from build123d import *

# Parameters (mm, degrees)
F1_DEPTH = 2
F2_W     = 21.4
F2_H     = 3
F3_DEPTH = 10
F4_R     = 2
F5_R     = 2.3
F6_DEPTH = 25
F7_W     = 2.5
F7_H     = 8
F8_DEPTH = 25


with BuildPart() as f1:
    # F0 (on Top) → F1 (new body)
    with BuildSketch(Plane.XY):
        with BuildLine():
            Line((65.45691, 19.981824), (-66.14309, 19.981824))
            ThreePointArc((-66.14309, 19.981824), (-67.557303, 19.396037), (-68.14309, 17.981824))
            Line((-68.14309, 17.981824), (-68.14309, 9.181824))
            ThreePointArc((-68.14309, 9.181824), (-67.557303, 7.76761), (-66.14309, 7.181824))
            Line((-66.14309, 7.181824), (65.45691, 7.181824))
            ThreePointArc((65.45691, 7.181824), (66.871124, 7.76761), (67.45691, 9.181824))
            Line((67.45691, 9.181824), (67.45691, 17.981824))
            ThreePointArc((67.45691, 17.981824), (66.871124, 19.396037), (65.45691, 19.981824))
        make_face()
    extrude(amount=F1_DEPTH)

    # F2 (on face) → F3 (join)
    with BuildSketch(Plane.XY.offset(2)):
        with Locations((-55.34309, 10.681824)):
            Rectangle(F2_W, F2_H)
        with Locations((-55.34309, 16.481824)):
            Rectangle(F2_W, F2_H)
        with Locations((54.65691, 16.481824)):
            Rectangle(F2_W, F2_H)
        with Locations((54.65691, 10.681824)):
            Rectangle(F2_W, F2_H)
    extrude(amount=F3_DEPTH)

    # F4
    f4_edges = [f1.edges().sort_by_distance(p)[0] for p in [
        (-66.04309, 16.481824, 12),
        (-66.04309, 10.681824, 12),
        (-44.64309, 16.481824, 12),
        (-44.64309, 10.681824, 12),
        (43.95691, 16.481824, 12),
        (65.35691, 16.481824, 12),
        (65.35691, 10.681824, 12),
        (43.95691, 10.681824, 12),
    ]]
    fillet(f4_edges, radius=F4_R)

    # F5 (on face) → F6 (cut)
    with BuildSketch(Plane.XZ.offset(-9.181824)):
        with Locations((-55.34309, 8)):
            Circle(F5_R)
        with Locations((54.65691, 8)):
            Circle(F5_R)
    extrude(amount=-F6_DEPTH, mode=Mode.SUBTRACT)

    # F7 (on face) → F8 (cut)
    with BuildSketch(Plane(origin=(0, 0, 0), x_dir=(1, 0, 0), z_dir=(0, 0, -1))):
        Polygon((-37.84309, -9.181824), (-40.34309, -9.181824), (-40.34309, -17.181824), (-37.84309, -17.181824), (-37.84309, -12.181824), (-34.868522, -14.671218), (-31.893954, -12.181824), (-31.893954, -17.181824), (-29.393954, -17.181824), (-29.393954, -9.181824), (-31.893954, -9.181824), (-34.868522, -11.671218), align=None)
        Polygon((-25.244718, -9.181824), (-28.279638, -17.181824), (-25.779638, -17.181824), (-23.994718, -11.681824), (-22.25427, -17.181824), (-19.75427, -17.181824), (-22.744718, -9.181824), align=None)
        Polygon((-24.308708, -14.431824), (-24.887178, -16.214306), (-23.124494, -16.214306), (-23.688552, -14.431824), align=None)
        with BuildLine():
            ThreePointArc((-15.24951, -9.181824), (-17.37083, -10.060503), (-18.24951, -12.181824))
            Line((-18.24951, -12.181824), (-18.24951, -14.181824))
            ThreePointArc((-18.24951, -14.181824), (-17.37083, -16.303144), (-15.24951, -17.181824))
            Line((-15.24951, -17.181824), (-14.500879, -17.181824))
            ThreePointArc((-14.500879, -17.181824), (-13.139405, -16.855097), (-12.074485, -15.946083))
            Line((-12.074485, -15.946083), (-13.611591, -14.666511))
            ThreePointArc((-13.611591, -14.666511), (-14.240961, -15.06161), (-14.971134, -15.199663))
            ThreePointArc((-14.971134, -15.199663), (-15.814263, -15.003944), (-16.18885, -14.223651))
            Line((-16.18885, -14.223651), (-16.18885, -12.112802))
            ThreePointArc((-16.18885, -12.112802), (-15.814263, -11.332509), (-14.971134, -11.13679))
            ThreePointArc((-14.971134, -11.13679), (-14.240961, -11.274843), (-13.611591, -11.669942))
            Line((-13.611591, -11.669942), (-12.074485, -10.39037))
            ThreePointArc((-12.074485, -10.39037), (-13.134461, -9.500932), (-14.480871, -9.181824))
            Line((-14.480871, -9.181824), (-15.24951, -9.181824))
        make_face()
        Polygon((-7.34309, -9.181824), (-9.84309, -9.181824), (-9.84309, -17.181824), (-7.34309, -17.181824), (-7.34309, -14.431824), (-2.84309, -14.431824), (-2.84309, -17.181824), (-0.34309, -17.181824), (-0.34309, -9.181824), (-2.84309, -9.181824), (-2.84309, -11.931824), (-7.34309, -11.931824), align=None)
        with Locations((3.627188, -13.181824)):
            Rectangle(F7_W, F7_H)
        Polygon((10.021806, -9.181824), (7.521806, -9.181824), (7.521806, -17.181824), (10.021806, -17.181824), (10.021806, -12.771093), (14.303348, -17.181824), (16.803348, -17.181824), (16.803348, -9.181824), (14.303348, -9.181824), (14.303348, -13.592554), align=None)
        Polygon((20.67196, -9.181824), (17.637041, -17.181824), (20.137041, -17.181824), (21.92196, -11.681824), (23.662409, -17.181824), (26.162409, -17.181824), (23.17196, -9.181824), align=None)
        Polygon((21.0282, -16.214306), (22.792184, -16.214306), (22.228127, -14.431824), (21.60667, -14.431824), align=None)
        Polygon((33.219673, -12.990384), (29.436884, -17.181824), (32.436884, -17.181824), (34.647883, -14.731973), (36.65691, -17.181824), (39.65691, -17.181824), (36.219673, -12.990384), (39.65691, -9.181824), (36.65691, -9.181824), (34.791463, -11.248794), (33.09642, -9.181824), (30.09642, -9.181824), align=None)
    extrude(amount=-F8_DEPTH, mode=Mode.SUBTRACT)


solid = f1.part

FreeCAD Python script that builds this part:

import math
import FreeCAD as App
import Part
import Sketcher
from FreeCAD import Vector


def edges_at(feature, points):
    """Names of the edges that pass closest to the given points."""
    edges = feature.Shape.Edges
    near = lambda p: min(range(len(edges)), key=lambda i: edges[i].distToShape(Part.Vertex(*p))[0])
    return sorted({f"Edge{near(p) + 1}" for p in points})


def add_polygon(sketch, points):
    """Adds a closed chain of lines whose ends are joined by coincident constraints."""
    first, n = sketch.GeometryCount, len(points)
    for a, b in zip(points, points[1:] + points[:1]):
        sketch.addGeometry(Part.LineSegment(App.Vector(*a, 0), App.Vector(*b, 0)), False)
    for i in range(n):
        sketch.addConstraint(Sketcher.Constraint("Coincident", first + i, 2, first + (i + 1) % n, 1))

doc = App.newDocument("Part")
body = doc.addObject("PartDesign::Body", "Body")

# Sketch on XY plane
sketch1 = doc.addObject("Sketcher::SketchObject", "Sketch")
body.addObject(sketch1)
sketch1.AttachmentSupport = (doc.XY_Plane, [""])
sketch1.MapMode = "FlatFace"
sketch1.addGeometry(Part.LineSegment(Vector(65.45691, 19.981824, 0), Vector(-66.14309, 19.981824, 0)), False)
sketch1.addGeometry(Part.ArcOfCircle(Part.Circle(Vector(-66.143088, 17.981822, 0), Vector(0, 0, 1), 2.000002), math.radians(90.000055), math.radians(179.999945)), False)
sketch1.addGeometry(Part.LineSegment(Vector(-68.14309, 17.981824, 0), Vector(-68.14309, 9.181824, 0)), False)
sketch1.addGeometry(Part.ArcOfCircle(Part.Circle(Vector(-66.14309, 9.181824, 0), Vector(0, 0, 1), 2), math.radians(-179.999994), math.radians(-90.000006)), False)
sketch1.addGeometry(Part.LineSegment(Vector(-66.14309, 7.181824, 0), Vector(65.45691, 7.181824, 0)), False)
sketch1.addGeometry(Part.ArcOfCircle(Part.Circle(Vector(65.456911, 9.181823, 0), Vector(0, 0, 1), 1.999999), math.radians(-90.000043), math.radians(0.000043)), False)
sketch1.addGeometry(Part.LineSegment(Vector(67.45691, 9.181824, 0), Vector(67.45691, 17.981824, 0)), False)
sketch1.addGeometry(Part.ArcOfCircle(Part.Circle(Vector(65.45691, 17.981824, 0), Vector(0, 0, 1), 2), math.radians(0.000006), math.radians(89.999994)), False)
sketch1.addConstraint(Sketcher.Constraint("Tangent", 0, 2, 1, 1))
sketch1.addConstraint(Sketcher.Constraint("Tangent", 1, 2, 2, 1))
sketch1.addConstraint(Sketcher.Constraint("Tangent", 2, 2, 3, 1))
sketch1.addConstraint(Sketcher.Constraint("Tangent", 3, 2, 4, 1))
sketch1.addConstraint(Sketcher.Constraint("Tangent", 4, 2, 5, 1))
sketch1.addConstraint(Sketcher.Constraint("Tangent", 5, 2, 6, 1))
sketch1.addConstraint(Sketcher.Constraint("Tangent", 6, 2, 7, 1))
sketch1.addConstraint(Sketcher.Constraint("Tangent", 7, 2, 0, 1))
sketch1.addConstraint(Sketcher.Constraint("Horizontal", 0))
sketch1.addConstraint(Sketcher.Constraint("Vertical", 2))
sketch1.addConstraint(Sketcher.Constraint("Horizontal", 4))
sketch1.addConstraint(Sketcher.Constraint("Vertical", 6))
sketch1.addConstraint(Sketcher.Constraint("Equal", 1, 3))
sketch1.addConstraint(Sketcher.Constraint("Equal", 3, 5))
sketch1.addConstraint(Sketcher.Constraint("Equal", 5, 7))
sketch1.addConstraint(Sketcher.Constraint("Radius", 1, 2.000002))
sketch1.addConstraint(Sketcher.Constraint("DistanceX", 0, 2, 0, 1, 131.6))
sketch1.addConstraint(Sketcher.Constraint("DistanceY", 2, 2, 2, 1, 8.8))
sketch1.addConstraint(Sketcher.Constraint("DistanceX", 1, 3, -1, 1, 66.143088))
sketch1.addConstraint(Sketcher.Constraint("DistanceY", -1, 1, 1, 3, 17.981822))
pad1 = doc.addObject("PartDesign::Pad", "Pad")
body.addObject(pad1)
pad1.Profile = sketch1
pad1.Length = 2

# Sketch on XY plane
sketch2 = doc.addObject("Sketcher::SketchObject", "Sketch001")
body.addObject(sketch2)
sketch2.AttachmentSupport = (doc.XY_Plane, [""])
sketch2.MapMode = "FlatFace"
sketch2.AttachmentOffset = App.Placement(Vector(0, 0, 2), App.Rotation())
add_polygon(sketch2, [(-66.04309, 12.181824), (-66.04309, 9.181824), (-44.64309, 9.181824), (-44.64309, 12.181824)])  # lines 0-3
add_polygon(sketch2, [(-66.04309, 17.981824), (-66.04309, 14.981824), (-44.64309, 14.981824), (-44.64309, 17.981824)])  # lines 4-7
add_polygon(sketch2, [(43.95691, 17.981824), (43.95691, 14.981824), (65.35691, 14.981824), (65.35691, 17.981824)])  # lines 8-11
add_polygon(sketch2, [(43.95691, 12.181824), (43.95691, 9.181824), (65.35691, 9.181824), (65.35691, 12.181824)])  # lines 12-15
sketch2.addConstraint(Sketcher.Constraint("Vertical", 0))
sketch2.addConstraint(Sketcher.Constraint("Horizontal", 1))
sketch2.addConstraint(Sketcher.Constraint("Vertical", 2))
sketch2.addConstraint(Sketcher.Constraint("Horizontal", 3))
sketch2.addConstraint(Sketcher.Constraint("Vertical", 4))
sketch2.addConstraint(Sketcher.Constraint("Horizontal", 5))
sketch2.addConstraint(Sketcher.Constraint("Vertical", 6))
sketch2.addConstraint(Sketcher.Constraint("Horizontal", 7))
sketch2.addConstraint(Sketcher.Constraint("Vertical", 8))
sketch2.addConstraint(Sketcher.Constraint("Horizontal", 9))
sketch2.addConstraint(Sketcher.Constraint("Vertical", 10))
sketch2.addConstraint(Sketcher.Constraint("Horizontal", 11))
sketch2.addConstraint(Sketcher.Constraint("Vertical", 12))
sketch2.addConstraint(Sketcher.Constraint("Horizontal", 13))
sketch2.addConstraint(Sketcher.Constraint("Vertical", 14))
sketch2.addConstraint(Sketcher.Constraint("Horizontal", 15))
sketch2.addConstraint(Sketcher.Constraint("Horizontal", 5, 2, 8, 2))
sketch2.addConstraint(Sketcher.Constraint("Horizontal", 7, 2, 10, 2))
sketch2.addConstraint(Sketcher.Constraint("Horizontal", 1, 2, 12, 2))
sketch2.addConstraint(Sketcher.Constraint("Horizontal", 3, 2, 14, 2))
sketch2.addConstraint(Sketcher.Constraint("Vertical", 3, 2, 4, 2))
sketch2.addConstraint(Sketcher.Constraint("Vertical", 2, 2, 5, 2))
sketch2.addConstraint(Sketcher.Constraint("Vertical", 11, 2, 12, 2))
sketch2.addConstraint(Sketcher.Constraint("Vertical", 10, 2, 13, 2))
sketch2.addConstraint(Sketcher.Constraint("Equal", 7, 9))
sketch2.addConstraint(Sketcher.Constraint("Equal", 2, 4))
sketch2.addConstraint(Sketcher.Constraint("DistanceY", 0, 2, 0, 1, 3.0))
sketch2.addConstraint(Sketcher.Constraint("DistanceX", 1, 1, 1, 2, 21.4))
sketch2.addConstraint(Sketcher.Constraint("DistanceX", 4, 2, 8, 2, 110.0))
sketch2.addConstraint(Sketcher.Constraint("DistanceY", 3, 2, 4, 2, 2.8))
sketch2.addConstraint(Sketcher.Constraint("DistanceX", 0, 2, -1, 1, 66.04309))
sketch2.addConstraint(Sketcher.Constraint("DistanceY", -1, 1, 0, 2, 9.181824))
pad2 = doc.addObject("PartDesign::Pad", "Pad001")
body.addObject(pad2)
pad2.Profile = sketch2
pad2.Length = 10
doc.recompute()

fillet = doc.addObject("PartDesign::Fillet", "Fillet")
body.addObject(fillet)
fillet.Base = (pad2, edges_at(pad2, [
    (-66.043, 16.482, 12),
    (-66.043, 10.682, 12),
    (-44.643, 16.482, 12),
    (-44.643, 10.682, 12),
    (43.957, 16.482, 12),
    (65.357, 16.482, 12),
    (65.357, 10.682, 12),
    (43.957, 10.682, 12),
]))
fillet.Radius = 2

# Sketch on XZ plane
sketch3 = doc.addObject("Sketcher::SketchObject", "Sketch002")
body.addObject(sketch3)
sketch3.AttachmentSupport = (doc.XZ_Plane, [""])
sketch3.MapMode = "FlatFace"
sketch3.AttachmentOffset = App.Placement(Vector(0, 0, -9.181824), App.Rotation())
sketch3.addGeometry(Part.Circle(Vector(-55.34309, 8, 0), Vector(0, 0, 1), 2.3), False)
sketch3.addGeometry(Part.Circle(Vector(54.65691, 8, 0), Vector(0, 0, 1), 2.3), False)
sketch3.addConstraint(Sketcher.Constraint("Equal", 0, 1))
sketch3.addConstraint(Sketcher.Constraint("Horizontal", 0, 3, 1, 3))
sketch3.addConstraint(Sketcher.Constraint("Diameter", 0, 4.6))
sketch3.addConstraint(Sketcher.Constraint("DistanceY", -1, 1, 0, 3, 8.0))
sketch3.addConstraint(Sketcher.Constraint("DistanceX", 0, 3, 1, 3, 110.0))
sketch3.addConstraint(Sketcher.Constraint("DistanceX", 0, 3, -1, 1, 55.34309))
pocket1 = doc.addObject("PartDesign::Pocket", "Pocket")
body.addObject(pocket1)
pocket1.Profile = sketch3
pocket1.Length = 25

# Sketch on XY plane
sketch4 = doc.addObject("Sketcher::SketchObject", "Sketch003")
body.addObject(sketch4)
sketch4.AttachmentSupport = (doc.XY_Plane, [""])
sketch4.MapMode = "FlatFace"
add_polygon(sketch4, [(-37.84309, 9.181824), (-40.34309, 9.181824), (-40.34309, 17.181824), (-37.84309, 17.181824), (-37.84309, 12.181824), (-34.868522, 14.671218), (-31.893954, 12.181824), (-31.893954, 17.181824), (-29.393954, 17.181824), (-29.393954, 9.181824), (-31.893954, 9.181824), (-34.868522, 11.671218)])  # lines 0-11
add_polygon(sketch4, [(-25.244718, 9.181824), (-28.279638, 17.181824), (-25.779638, 17.181824), (-23.994718, 11.681824), (-22.25427, 17.181824), (-19.75427, 17.181824), (-22.744718, 9.181824)])  # lines 12-18
add_polygon(sketch4, [(-24.308708, 14.431824), (-24.887178, 16.214306), (-23.124494, 16.214306), (-23.688552, 14.431824)])  # lines 19-22
sketch4.addGeometry(Part.ArcOfCircle(Part.Circle(Vector(-15.249511, 12.181823, 0), Vector(0, 0, 1), 2.999999), math.radians(179.99999), math.radians(270.00001)), False)  # 23
sketch4.addGeometry(Part.LineSegment(Vector(-18.24951, 12.181824, 0), Vector(-18.24951, 14.181824, 0)), False)  # 24
sketch4.addGeometry(Part.ArcOfCircle(Part.Circle(Vector(-15.249509, 14.181823, 0), Vector(0, 0, 1), 3.000001), math.radians(90.000022), math.radians(179.999978)), False)  # 25
sketch4.addGeometry(Part.LineSegment(Vector(-15.24951, 17.181824, 0), Vector(-14.500879, 17.181824, 0)), False)  # 26
sketch4.addGeometry(Part.ArcOfCircle(Part.Circle(Vector(-14.500879, 14.181826, 0), Vector(0, 0, 1), 2.999998), math.radians(36.021309), math.radians(90.000008)), False)  # 27
sketch4.addGeometry(Part.LineSegment(Vector(-12.074485, 15.946083, 0), Vector(-13.611591, 14.666511, 0)), False)  # 28
sketch4.addGeometry(Part.ArcOfCircle(Part.Circle(Vector(-14.971135, 13.19966, 0), Vector(0, 0, 1), 2.000003), math.radians(47.174247), math.radians(89.999969)), False)  # 29
sketch4.addGeometry(Part.ArcOfCircle(Part.Circle(Vector(-15.188849, 14.22365, 0), Vector(0, 0, 1), 1.000001), math.radians(77.425151), math.radians(179.999922)), False)  # 30
sketch4.addGeometry(Part.LineSegment(Vector(-16.18885, 14.223651, 0), Vector(-16.18885, 12.112802, 0)), False)  # 31
sketch4.addGeometry(Part.ArcOfCircle(Part.Circle(Vector(-15.188849, 12.112803, 0), Vector(0, 0, 1), 1.000001), math.radians(-179.999922), math.radians(-77.425151)), False)  # 32
sketch4.addGeometry(Part.ArcOfCircle(Part.Circle(Vector(-14.971135, 13.136793, 0), Vector(0, 0, 1), 2.000003), math.radians(-89.999969), math.radians(-47.174247)), False)  # 33
sketch4.addGeometry(Part.LineSegment(Vector(-13.611591, 11.669942, 0), Vector(-12.074485, 10.39037, 0)), False)  # 34
sketch4.addGeometry(Part.ArcOfCircle(Part.Circle(Vector(-14.48087, 12.181822, 0), Vector(0, 0, 1), 2.999998), math.radians(-90.000021), math.radians(-36.666132)), False)  # 35
sketch4.addGeometry(Part.LineSegment(Vector(-14.480871, 9.181824, 0), Vector(-15.24951, 9.181824, 0)), False)  # 36
add_polygon(sketch4, [(-7.34309, 9.181824), (-9.84309, 9.181824), (-9.84309, 17.181824), (-7.34309, 17.181824), (-7.34309, 14.431824), (-2.84309, 14.431824), (-2.84309, 17.181824), (-0.34309, 17.181824), (-0.34309, 9.181824), (-2.84309, 9.181824), (-2.84309, 11.931824), (-7.34309, 11.931824)])  # lines 37-48
add_polygon(sketch4, [(2.377188, 9.181824), (2.377188, 17.181824), (4.877188, 17.181824), (4.877188, 9.181824)])  # lines 49-52
add_polygon(sketch4, [(10.021806, 9.181824), (7.521806, 9.181824), (7.521806, 17.181824), (10.021806, 17.181824), (10.021806, 12.771093), (14.303348, 17.181824), (16.803348, 17.181824), (16.803348, 9.181824), (14.303348, 9.181824), (14.303348, 13.592554)])  # lines 53-62
add_polygon(sketch4, [(20.67196, 9.181824), (17.637041, 17.181824), (20.137041, 17.181824), (21.92196, 11.681824), (23.662409, 17.181824), (26.162409, 17.181824), (23.17196, 9.181824)])  # lines 63-69
add_polygon(sketch4, [(21.0282, 16.214306), (22.792184, 16.214306), (22.228127, 14.431824), (21.60667, 14.431824)])  # lines 70-73
add_polygon(sketch4, [(33.219673, 12.990384), (29.436884, 17.181824), (32.436884, 17.181824), (34.647883, 14.731973), (36.65691, 17.181824), (39.65691, 17.181824), (36.219673, 12.990384), (39.65691, 9.181824), (36.65691, 9.181824), (34.791463, 11.248794), (33.09642, 9.181824), (30.09642, 9.181824)])  # lines 74-85
sketch4.addConstraint(Sketcher.Constraint("Coincident", 23, 1, 24, 1))
sketch4.addConstraint(Sketcher.Constraint("Coincident", 24, 2, 25, 2))
sketch4.addConstraint(Sketcher.Constraint("Coincident", 25, 1, 26, 1))
sketch4.addConstraint(Sketcher.Constraint("Coincident", 26, 2, 27, 2))
sketch4.addConstraint(Sketcher.Constraint("Coincident", 27, 1, 28, 1))
sketch4.addConstraint(Sketcher.Constraint("Coincident", 28, 2, 29, 1))
sketch4.addConstraint(Sketcher.Constraint("Coincident", 29, 2, 30, 1))
sketch4.addConstraint(Sketcher.Constraint("Coincident", 30, 2, 31, 1))
sketch4.addConstraint(Sketcher.Constraint("Coincident", 31, 2, 32, 1))
sketch4.addConstraint(Sketcher.Constraint("Coincident", 32, 2, 33, 1))
sketch4.addConstraint(Sketcher.Constraint("Coincident", 33, 2, 34, 1))
sketch4.addConstraint(Sketcher.Constraint("Coincident", 34, 2, 35, 2))
sketch4.addConstraint(Sketcher.Constraint("Coincident", 35, 1, 36, 1))
sketch4.addConstraint(Sketcher.Constraint("Coincident", 36, 2, 23, 2))
sketch4.addConstraint(Sketcher.Constraint("Horizontal", 0))
sketch4.addConstraint(Sketcher.Constraint("Vertical", 1))
sketch4.addConstraint(Sketcher.Constraint("Horizontal", 2))
sketch4.addConstraint(Sketcher.Constraint("Vertical", 3))
sketch4.addConstraint(Sketcher.Constraint("Vertical", 6))
sketch4.addConstraint(Sketcher.Constraint("Horizontal", 7))
sketch4.addConstraint(Sketcher.Constraint("Vertical", 8))
sketch4.addConstraint(Sketcher.Constraint("Horizontal", 9))
sketch4.addConstraint(Sketcher.Constraint("Horizontal", 13))
sketch4.addConstraint(Sketcher.Constraint("Horizontal", 16))
sketch4.addConstraint(Sketcher.Constraint("Horizontal", 18))
sketch4.addConstraint(Sketcher.Constraint("Horizontal", 20))
sketch4.addConstraint(Sketcher.Constraint("Horizontal", 22))
sketch4.addConstraint(Sketcher.Constraint("Vertical", 24))
sketch4.addConstraint(Sketcher.Constraint("Horizontal", 26))
sketch4.addConstraint(Sketcher.Constraint("Vertical", 31))
sketch4.addConstraint(Sketcher.Constraint("Horizontal", 36))
sketch4.addConstraint(Sketcher.Constraint("Horizontal", 37))
sketch4.addConstraint(Sketcher.Constraint("Vertical", 38))
sketch4.addConstraint(Sketcher.Constraint("Horizontal", 39))
sketch4.addConstraint(Sketcher.Constraint("Vertical", 40))
sketch4.addConstraint(Sketcher.Constraint("Horizontal", 41))
sketch4.addConstraint(Sketcher.Constraint("Vertical", 42))
sketch4.addConstraint(Sketcher.Constraint("Horizontal", 43))
sketch4.addConstraint(Sketcher.Constraint("Vertical", 44))
sketch4.addConstraint(Sketcher.Constraint("Horizontal", 45))
sketch4.addConstraint(Sketcher.Constraint("Vertical", 46))
sketch4.addConstraint(Sketcher.Constraint("Horizontal", 47))
sketch4.addConstraint(Sketcher.Constraint("Vertical", 48))
sketch4.addConstraint(Sketcher.Constraint("Vertical", 49))
sketch4.addConstraint(Sketcher.Constraint("Horizontal", 50))
sketch4.addConstraint(Sketcher.Constraint("Vertical", 51))
sketch4.addConstraint(Sketcher.Constraint("Horizontal", 52))
sketch4.addConstraint(Sketcher.Constraint("Horizontal", 53))
sketch4.addConstraint(Sketcher.Constraint("Vertical", 54))
sketch4.addConstraint(Sketcher.Constraint("Horizontal", 55))
sketch4.addConstraint(Sketcher.Constraint("Vertical", 56))
sketch4.addConstraint(Sketcher.Constraint("Horizontal", 58))
sketch4.addConstraint(Sketcher.Constraint("Vertical", 59))
sketch4.addConstraint(Sketcher.Constraint("Horizontal", 60))
sketch4.addConstraint(Sketcher.Constraint("Vertical", 61))
sketch4.addConstraint(Sketcher.Constraint("Horizontal", 64))
sketch4.addConstraint(Sketcher.Constraint("Horizontal", 67))
sketch4.addConstraint(Sketcher.Constraint("Horizontal", 69))
sketch4.addConstraint(Sketcher.Constraint("Horizontal", 70))
sketch4.addConstraint(Sketcher.Constraint("Horizontal", 72))
sketch4.addConstraint(Sketcher.Constraint("Horizontal", 75))
sketch4.addConstraint(Sketcher.Constraint("Horizontal", 78))
sketch4.addConstraint(Sketcher.Constraint("Horizontal", 81))
sketch4.addConstraint(Sketcher.Constraint("Horizontal", 84))
sketch4.addConstraint(Sketcher.Constraint("Radius", 23, 2.999999))
sketch4.addConstraint(Sketcher.Constraint("Radius", 25, 3.000001))
sketch4.addConstraint(Sketcher.Constraint("Radius", 27, 2.999998))
sketch4.addConstraint(Sketcher.Constraint("Radius", 30, 1.000001))
sketch4.addConstraint(Sketcher.Constraint("Radius", 32, 1.000001))
sketch4.addConstraint(Sketcher.Constraint("Radius", 35, 2.999998))
sketch4.addConstraint(Sketcher.Constraint("DistanceX", 75, 1, 75, 2, 3.0))
sketch4.addConstraint(Sketcher.Constraint("DistanceX", 78, 1, 78, 2, 3.0))
sketch4.addConstraint(Sketcher.Constraint("DistanceX", 81, 2, 81, 1, 3.0))
sketch4.addConstraint(Sketcher.Constraint("DistanceX", 84, 2, 84, 1, 3.0))
sketch4.addConstraint(Sketcher.Constraint("DistanceY", 1, 1, 1, 2, 8.0))
sketch4.addConstraint(Sketcher.Constraint("DistanceY", 3, 2, 3, 1, 5.0))
sketch4.addConstraint(Sketcher.Constraint("DistanceY", 6, 1, 6, 2, 5.0))
sketch4.addConstraint(Sketcher.Constraint("DistanceY", 8, 2, 8, 1, 8.0))
sketch4.addConstraint(Sketcher.Constraint("DistanceY", 24, 1, 24, 2, 2.0))
sketch4.addConstraint(Sketcher.Constraint("DistanceY", 38, 1, 38, 2, 8.0))
sketch4.addConstraint(Sketcher.Constraint("DistanceY", 44, 2, 44, 1, 8.0))
sketch4.addConstraint(Sketcher.Constraint("DistanceY", 49, 1, 49, 2, 8.0))
sketch4.addConstraint(Sketcher.Constraint("DistanceY", 54, 1, 54, 2, 8.0))
sketch4.addConstraint(Sketcher.Constraint("DistanceY", 59, 2, 59, 1, 8.0))
sketch4.addConstraint(Sketcher.Constraint("Distance", 28, 2.0))
sketch4.addConstraint(Sketcher.Constraint("Distance", 34, 2.0))
sketch4.addConstraint(Sketcher.Constraint("DistanceX", 0, 2, 0, 1, 2.5))
sketch4.addConstraint(Sketcher.Constraint("DistanceX", 2, 1, 2, 2, 2.5))
sketch4.addConstraint(Sketcher.Constraint("DistanceX", 7, 1, 7, 2, 2.5))
sketch4.addConstraint(Sketcher.Constraint("DistanceX", 9, 2, 9, 1, 2.5))
sketch4.addConstraint(Sketcher.Constraint("DistanceX", 13, 1, 13, 2, 2.5))
sketch4.addConstraint(Sketcher.Constraint("DistanceX", 16, 1, 16, 2, 2.5))
sketch4.addConstraint(Sketcher.Constraint("DistanceX", 18, 2, 18, 1, 2.5))
sketch4.addConstraint(Sketcher.Constraint("DistanceX", 37, 2, 37, 1, 2.5))
sketch4.addConstraint(Sketcher.Constraint("DistanceX", 39, 1, 39, 2, 2.5))
sketch4.addConstraint(Sketcher.Constraint("DistanceX", 41, 1, 41, 2, 4.5))
sketch4.addConstraint(Sketcher.Constraint("DistanceX", 43, 1, 43, 2, 2.5))
sketch4.addConstraint(Sketcher.Constraint("DistanceX", 45, 2, 45, 1, 2.5))
sketch4.addConstraint(Sketcher.Constraint("DistanceX", 50, 1, 50, 2, 2.5))
sketch4.addConstraint(Sketcher.Constraint("DistanceX", 53, 2, 53, 1, 2.5))
sketch4.addConstraint(Sketcher.Constraint("DistanceX", 55, 1, 55, 2, 2.5))
sketch4.addConstraint(Sketcher.Constraint("DistanceX", 58, 1, 58, 2, 2.5))
sketch4.addConstraint(Sketcher.Constraint("DistanceX", 60, 2, 60, 1, 2.5))
sketch4.addConstraint(Sketcher.Constraint("DistanceX", 64, 1, 64, 2, 2.5))
sketch4.addConstraint(Sketcher.Constraint("DistanceX", 67, 1, 67, 2, 2.5))
sketch4.addConstraint(Sketcher.Constraint("DistanceX", 69, 2, 69, 1, 2.5))
sketch4.addConstraint(Sketcher.Constraint("DistanceY", 40, 2, 40, 1, 2.75))
sketch4.addConstraint(Sketcher.Constraint("DistanceY", 42, 1, 42, 2, 2.75))
sketch4.addConstraint(Sketcher.Constraint("DistanceY", 46, 1, 46, 2, 2.75))
sketch4.addConstraint(Sketcher.Constraint("Distance", 19, 1.873998))
sketch4.addConstraint(Sketcher.Constraint("Distance", 73, 1.873998))
sketch4.addConstraint(Sketcher.Constraint("Radius", 29, 2.000003))
sketch4.addConstraint(Sketcher.Constraint("Radius", 33, 2.000003))
sketch4.addConstraint(Sketcher.Constraint("Distance", 21, 1.8696))
sketch4.addConstraint(Sketcher.Constraint("Distance", 71, 1.8696))
sketch4.addConstraint(Sketcher.Constraint("DistanceX", 26, 1, 26, 2, 0.748631))
sketch4.addConstraint(Sketcher.Constraint("DistanceX", 36, 2, 36, 1, 0.768639))
sketch4.addConstraint(Sketcher.Constraint("DistanceY", 31, 2, 31, 1, 2.110849))
sketch4.addConstraint(Sketcher.Constraint("DistanceY", 56, 2, 56, 1, 4.410731))
sketch4.addConstraint(Sketcher.Constraint("DistanceY", 61, 1, 61, 2, 4.41073))
sketch4.addConstraint(Sketcher.Constraint("DistanceX", -1, 1, 73, 2, 21.0282))
sketch4.addConstraint(Sketcher.Constraint("Distance", 14, 5.782382))
sketch4.addConstraint(Sketcher.Constraint("Distance", 15, 5.768809))
sketch4.addConstraint(Sketcher.Constraint("Distance", 65, 5.782382))
sketch4.addConstraint(Sketcher.Constraint("Distance", 66, 5.768809))
sketch4.addConstraint(Sketcher.Constraint("Distance", 74, 5.646031))
sketch4.addConstraint(Sketcher.Constraint("DistanceX", 20, 1, 20, 2, 1.762684))
sketch4.addConstraint(Sketcher.Constraint("DistanceX", 22, 2, 22, 1, 0.620156))
sketch4.addConstraint(Sketcher.Constraint("DistanceX", 70, 1, 70, 2, 1.763984))
sketch4.addConstraint(Sketcher.Constraint("DistanceX", 72, 2, 72, 1, 0.621457))
sketch4.addConstraint(Sketcher.Constraint("DistanceX", 23, 3, -1, 1, 15.249511))
sketch4.addConstraint(Sketcher.Constraint("DistanceX", 27, 3, -1, 1, 14.500879))
sketch4.addConstraint(Sketcher.Constraint("DistanceY", -1, 1, 29, 3, 13.19966))
sketch4.addConstraint(Sketcher.Constraint("DistanceX", 30, 3, -1, 1, 15.188849))
sketch4.addConstraint(Sketcher.Constraint("DistanceY", -1, 1, 30, 3, 14.22365))
sketch4.addConstraint(Sketcher.Constraint("DistanceX", 35, 3, -1, 1, 14.48087))
sketch4.addConstraint(Sketcher.Constraint("DistanceX", 0, 2, -1, 1, 40.34309))
sketch4.addConstraint(Sketcher.Constraint("DistanceX", 15, 2, -1, 1, 22.25427))
sketch4.addConstraint(Sketcher.Constraint("DistanceX", 25, 1, -1, 1, 15.24951))
sketch4.addConstraint(Sketcher.Constraint("DistanceX", 28, 2, -1, 1, 13.611591))
sketch4.addConstraint(Sketcher.Constraint("DistanceY", -1, 1, 28, 2, 14.666511))
sketch4.addConstraint(Sketcher.Constraint("DistanceY", -1, 1, 30, 2, 14.223651))
sketch4.addConstraint(Sketcher.Constraint("DistanceY", -1, 1, 32, 2, 11.13679))
sketch4.addConstraint(Sketcher.Constraint("DistanceX", 33, 2, -1, 1, 13.611591))
sketch4.addConstraint(Sketcher.Constraint("DistanceY", -1, 1, 34, 2, 10.39037))
sketch4.addConstraint(Sketcher.Constraint("DistanceX", 35, 1, -1, 1, 14.480871))
sketch4.addConstraint(Sketcher.Constraint("DistanceX", 37, 2, -1, 1, 9.84309))
sketch4.addConstraint(Sketcher.Constraint("DistanceX", -1, 1, 50, 2, 4.877188))
sketch4.addConstraint(Sketcher.Constraint("DistanceX", -1, 1, 58, 2, 16.803348))
sketch4.addConstraint(Sketcher.Constraint("DistanceX", -1, 1, 63, 2, 17.637041))
sketch4.addConstraint(Sketcher.Constraint("DistanceX", -1, 1, 65, 2, 21.92196))
sketch4.addConstraint(Sketcher.Constraint("DistanceX", -1, 1, 66, 2, 23.662409))
sketch4.addConstraint(Sketcher.Constraint("DistanceX", -1, 1, 68, 2, 23.17196))
sketch4.addConstraint(Sketcher.Constraint("DistanceX", -1, 1, 77, 2, 36.65691))
sketch4.addConstraint(Sketcher.Constraint("DistanceX", -1, 1, 80, 2, 39.65691))
sketch4.addConstraint(Sketcher.Constraint("DistanceX", -1, 1, 83, 2, 33.09642))
sketch4.addConstraint(Sketcher.Constraint("Distance", 4, 3.878806))
sketch4.addConstraint(Sketcher.Constraint("Distance", 5, 3.878806))
sketch4.addConstraint(Sketcher.Constraint("Distance", 10, 3.878806))
sketch4.addConstraint(Sketcher.Constraint("Distance", 11, 3.878806))
sketch4.addConstraint(Sketcher.Constraint("Distance", 12, 8.556327))
sketch4.addConstraint(Sketcher.Constraint("Distance", 17, 8.540654))
sketch4.addConstraint(Sketcher.Constraint("Distance", 57, 6.147044))
sketch4.addConstraint(Sketcher.Constraint("Distance", 63, 8.556327))
sketch4.addConstraint(Sketcher.Constraint("Distance", 76, 3.300043))
sketch4.addConstraint(Sketcher.Constraint("Distance", 77, 3.168274))
sketch4.addConstraint(Sketcher.Constraint("Distance", 79, 5.420587))
sketch4.addConstraint(Sketcher.Constraint("Distance", 80, 5.130276))
sketch4.addConstraint(Sketcher.Constraint("Distance", 82, 2.784288))
sketch4.addConstraint(Sketcher.Constraint("Distance", 83, 2.673113))
sketch4.addConstraint(Sketcher.Constraint("Distance", 85, 4.925428))
sketch4.addConstraint(Sketcher.Constraint("DistanceY", -1, 1, 23, 3, 12.181823))
sketch4.addConstraint(Sketcher.Constraint("DistanceY", -1, 1, 25, 3, 14.181823))
sketch4.addConstraint(Sketcher.Constraint("DistanceY", -1, 1, 32, 3, 12.112803))
sketch4.addConstraint(Sketcher.Constraint("DistanceY", -1, 1, 0, 2, 9.181824))
sketch4.addConstraint(Sketcher.Constraint("DistanceX", 4, 2, -1, 1, 34.868522))
sketch4.addConstraint(Sketcher.Constraint("DistanceX", 5, 2, -1, 1, 31.893954))
sketch4.addConstraint(Sketcher.Constraint("DistanceX", 12, 2, -1, 1, 28.279638))
sketch4.addConstraint(Sketcher.Constraint("DistanceY", -1, 1, 12, 2, 17.181824))
sketch4.addConstraint(Sketcher.Constraint("DistanceX", 14, 2, -1, 1, 23.994718))
sketch4.addConstraint(Sketcher.Constraint("DistanceX", 19, 2, -1, 1, 24.887178))
sketch4.addConstraint(Sketcher.Constraint("DistanceY", -1, 1, 19, 2, 16.214306))
sketch4.addConstraint(Sketcher.Constraint("DistanceY", -1, 1, 23, 1, 12.181824))
sketch4.addConstraint(Sketcher.Constraint("DistanceY", -1, 1, 37, 2, 9.181824))
sketch4.addConstraint(Sketcher.Constraint("DistanceY", -1, 1, 49, 2, 17.181824))
sketch4.addConstraint(Sketcher.Constraint("DistanceX", -1, 1, 53, 2, 7.521806))
sketch4.addConstraint(Sketcher.Constraint("DistanceY", -1, 1, 53, 2, 9.181824))
sketch4.addConstraint(Sketcher.Constraint("DistanceY", -1, 1, 63, 2, 17.181824))
sketch4.addConstraint(Sketcher.Constraint("DistanceY", -1, 1, 70, 2, 16.214306))
sketch4.addConstraint(Sketcher.Constraint("DistanceX", -1, 1, 74, 2, 29.436884))
sketch4.addConstraint(Sketcher.Constraint("DistanceY", -1, 1, 74, 2, 17.181824))
sketch4.addConstraint(Sketcher.Constraint("DistanceX", -1, 1, 76, 2, 34.647883))
sketch4.addConstraint(Sketcher.Constraint("DistanceX", -1, 1, 79, 2, 36.219673))
sketch4.addConstraint(Sketcher.Constraint("DistanceX", -1, 1, 82, 2, 34.791463))
pocket2 = doc.addObject("PartDesign::Pocket", "Pocket001")
body.addObject(pocket2)
pocket2.Profile = sketch4
pocket2.Length = 25
pocket2.Reversed = True

doc.recompute()
